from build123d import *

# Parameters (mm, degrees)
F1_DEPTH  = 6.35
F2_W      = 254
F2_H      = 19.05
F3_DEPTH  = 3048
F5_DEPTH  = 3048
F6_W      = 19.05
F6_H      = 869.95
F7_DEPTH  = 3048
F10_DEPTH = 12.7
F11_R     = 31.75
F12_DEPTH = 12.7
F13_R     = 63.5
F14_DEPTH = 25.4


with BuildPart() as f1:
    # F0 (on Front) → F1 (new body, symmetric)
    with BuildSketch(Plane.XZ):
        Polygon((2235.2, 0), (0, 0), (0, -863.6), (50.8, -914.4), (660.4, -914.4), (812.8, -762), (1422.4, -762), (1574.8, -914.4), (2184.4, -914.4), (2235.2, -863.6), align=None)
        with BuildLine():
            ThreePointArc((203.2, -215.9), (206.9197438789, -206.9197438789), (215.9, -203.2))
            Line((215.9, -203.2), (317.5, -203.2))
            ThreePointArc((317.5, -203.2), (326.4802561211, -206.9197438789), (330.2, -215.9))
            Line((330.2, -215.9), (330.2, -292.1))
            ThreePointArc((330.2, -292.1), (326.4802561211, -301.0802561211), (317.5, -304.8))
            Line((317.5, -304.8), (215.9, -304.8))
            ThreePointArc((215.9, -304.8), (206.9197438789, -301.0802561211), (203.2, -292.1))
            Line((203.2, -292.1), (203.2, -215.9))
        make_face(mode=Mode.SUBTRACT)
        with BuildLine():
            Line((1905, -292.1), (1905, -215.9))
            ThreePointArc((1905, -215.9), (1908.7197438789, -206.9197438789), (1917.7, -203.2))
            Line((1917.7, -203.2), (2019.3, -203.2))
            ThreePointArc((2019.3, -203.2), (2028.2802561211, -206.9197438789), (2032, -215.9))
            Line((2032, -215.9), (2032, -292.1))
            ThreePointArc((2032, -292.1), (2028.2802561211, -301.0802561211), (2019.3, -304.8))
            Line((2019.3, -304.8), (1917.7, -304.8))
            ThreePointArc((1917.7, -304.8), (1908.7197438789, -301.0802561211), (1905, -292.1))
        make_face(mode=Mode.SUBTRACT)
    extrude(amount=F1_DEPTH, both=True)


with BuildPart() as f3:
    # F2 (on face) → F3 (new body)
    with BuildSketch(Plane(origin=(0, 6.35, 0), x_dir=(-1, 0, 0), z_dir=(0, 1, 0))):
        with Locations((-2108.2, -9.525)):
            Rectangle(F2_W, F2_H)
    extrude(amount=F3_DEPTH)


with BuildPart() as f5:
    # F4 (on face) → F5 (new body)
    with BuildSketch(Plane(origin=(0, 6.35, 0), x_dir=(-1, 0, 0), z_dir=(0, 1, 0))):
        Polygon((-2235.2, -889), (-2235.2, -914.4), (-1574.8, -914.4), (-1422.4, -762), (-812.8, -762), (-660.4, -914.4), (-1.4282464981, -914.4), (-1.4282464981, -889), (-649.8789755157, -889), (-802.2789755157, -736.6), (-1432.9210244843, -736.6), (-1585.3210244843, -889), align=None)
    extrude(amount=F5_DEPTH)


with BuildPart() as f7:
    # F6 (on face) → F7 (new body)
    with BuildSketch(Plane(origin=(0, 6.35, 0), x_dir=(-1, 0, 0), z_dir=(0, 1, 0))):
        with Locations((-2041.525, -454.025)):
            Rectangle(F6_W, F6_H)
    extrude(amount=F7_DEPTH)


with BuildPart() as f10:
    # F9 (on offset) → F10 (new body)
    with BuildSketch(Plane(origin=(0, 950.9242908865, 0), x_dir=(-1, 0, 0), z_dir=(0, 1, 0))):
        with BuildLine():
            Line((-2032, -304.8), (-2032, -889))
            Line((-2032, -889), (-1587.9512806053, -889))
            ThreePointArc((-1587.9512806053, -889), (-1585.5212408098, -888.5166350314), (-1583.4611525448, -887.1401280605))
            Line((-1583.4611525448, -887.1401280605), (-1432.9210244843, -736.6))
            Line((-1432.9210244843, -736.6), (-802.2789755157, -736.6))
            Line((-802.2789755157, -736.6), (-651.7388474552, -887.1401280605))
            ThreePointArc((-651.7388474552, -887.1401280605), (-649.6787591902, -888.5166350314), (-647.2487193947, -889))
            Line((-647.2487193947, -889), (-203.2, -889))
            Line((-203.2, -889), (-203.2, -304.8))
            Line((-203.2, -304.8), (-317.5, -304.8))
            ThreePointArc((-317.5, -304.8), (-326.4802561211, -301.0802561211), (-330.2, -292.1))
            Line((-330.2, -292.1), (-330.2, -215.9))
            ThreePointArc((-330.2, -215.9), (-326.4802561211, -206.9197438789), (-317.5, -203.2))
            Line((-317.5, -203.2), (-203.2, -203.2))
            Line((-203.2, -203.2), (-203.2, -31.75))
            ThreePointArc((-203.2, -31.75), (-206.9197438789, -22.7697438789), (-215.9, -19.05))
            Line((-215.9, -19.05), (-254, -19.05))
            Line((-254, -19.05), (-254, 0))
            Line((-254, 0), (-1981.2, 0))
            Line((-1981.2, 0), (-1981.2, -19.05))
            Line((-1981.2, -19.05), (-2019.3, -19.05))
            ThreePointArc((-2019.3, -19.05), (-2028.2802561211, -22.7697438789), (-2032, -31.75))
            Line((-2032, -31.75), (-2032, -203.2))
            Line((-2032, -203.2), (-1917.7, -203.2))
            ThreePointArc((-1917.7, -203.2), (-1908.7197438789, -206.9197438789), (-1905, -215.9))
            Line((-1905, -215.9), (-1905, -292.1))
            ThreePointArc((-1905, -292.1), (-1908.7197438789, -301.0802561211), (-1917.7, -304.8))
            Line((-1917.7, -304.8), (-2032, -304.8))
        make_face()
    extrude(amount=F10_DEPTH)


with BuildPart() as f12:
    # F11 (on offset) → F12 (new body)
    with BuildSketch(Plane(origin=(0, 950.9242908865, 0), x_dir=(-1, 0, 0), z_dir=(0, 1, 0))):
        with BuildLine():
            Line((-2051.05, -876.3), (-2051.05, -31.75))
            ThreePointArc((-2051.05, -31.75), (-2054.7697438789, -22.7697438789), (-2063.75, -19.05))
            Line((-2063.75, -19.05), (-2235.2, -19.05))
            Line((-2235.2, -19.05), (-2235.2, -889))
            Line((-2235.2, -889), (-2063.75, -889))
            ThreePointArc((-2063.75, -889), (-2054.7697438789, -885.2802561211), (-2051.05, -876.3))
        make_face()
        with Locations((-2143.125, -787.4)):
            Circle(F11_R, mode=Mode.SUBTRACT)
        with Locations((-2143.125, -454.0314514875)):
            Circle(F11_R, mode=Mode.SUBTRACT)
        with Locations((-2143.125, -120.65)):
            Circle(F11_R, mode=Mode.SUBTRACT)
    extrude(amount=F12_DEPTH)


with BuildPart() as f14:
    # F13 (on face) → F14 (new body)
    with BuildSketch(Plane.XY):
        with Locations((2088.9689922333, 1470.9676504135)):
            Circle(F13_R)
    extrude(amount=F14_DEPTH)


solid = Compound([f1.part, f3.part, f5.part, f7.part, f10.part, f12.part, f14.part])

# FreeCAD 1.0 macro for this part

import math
import FreeCAD as App
import Part
import Sketcher

V = App.Vector
Q = App.Units.Quantity

doc = App.newDocument("Part")
body = doc.addObject("PartDesign::Body", "Body")

sketch1 = body.newObject("Sketcher::SketchObject", "Sketch")
sketch1.AttachmentSupport = (doc.getObject("XZ_Plane"), [""])
sketch1.MapMode = "FlatFace"
sketch1.addGeometry([
    Part.LineSegment(V(2235, 0, 0), V(0, 0, 0)),
    Part.LineSegment(V(0, 0, 0), V(0, -864, 0)),
    Part.LineSegment(V(0, -864, 0), V(51, -914, 0)),
    Part.LineSegment(V(51, -914, 0), V(660, -914, 0)),
    Part.LineSegment(V(660, -914, 0), V(813, -762, 0)),
    Part.LineSegment(V(813, -762, 0), V(1422, -762, 0)),
    Part.LineSegment(V(1422, -762, 0), V(1575, -914, 0)),
    Part.LineSegment(V(1575, -914, 0), V(2184, -914, 0)),
    Part.LineSegment(V(2184, -914, 0), V(2235, -864, 0)),
    Part.LineSegment(V(2235, -864, 0), V(2235, 0, 0)),
    Part.ArcOfCircle(Part.Circle(V(1918, -292, 0), V(0, 0, 1), 13), math.radians(180), math.radians(270)),
    Part.LineSegment(V(1905, -292, 0), V(1905, -216, 0)),
    Part.ArcOfCircle(Part.Circle(V(1918, -216, 0), V(0, 0, 1), 13), math.radians(90), math.radians(180)),
    Part.LineSegment(V(1918, -203, 0), V(2019, -203, 0)),
    Part.ArcOfCircle(Part.Circle(V(2019, -216, 0), V(0, 0, 1), 13), math.radians(0), math.radians(90)),
    Part.LineSegment(V(2032, -216, 0), V(2032, -292, 0)),
    Part.ArcOfCircle(Part.Circle(V(2019, -292, 0), V(0, 0, 1), 13), math.radians(-90), math.radians(0)),
    Part.LineSegment(V(2019, -305, 0), V(1918, -305, 0)),
    Part.LineSegment(V(203, -292, 0), V(203, -216, 0)),
    Part.ArcOfCircle(Part.Circle(V(216, -216, 0), V(0, 0, 1), 13), math.radians(90), math.radians(180)),
    Part.LineSegment(V(216, -203, 0), V(318, -203, 0)),
    Part.ArcOfCircle(Part.Circle(V(318, -216, 0), V(0, 0, 1), 13), math.radians(0), math.radians(90)),
    Part.LineSegment(V(330, -216, 0), V(330, -292, 0)),
    Part.ArcOfCircle(Part.Circle(V(318, -292, 0), V(0, 0, 1), 13), math.radians(-90), math.radians(0)),
    Part.LineSegment(V(318, -305, 0), V(216, -305, 0)),
    Part.ArcOfCircle(Part.Circle(V(216, -292, 0), V(0, 0, 1), 13), math.radians(180), math.radians(270)),
], False)
sketch1.addConstraint([
    Sketcher.Constraint("Coincident", 0, 2, 1, 1),
    Sketcher.Constraint("Coincident", 1, 2, 2, 1),
    Sketcher.Constraint("Coincident", 2, 2, 3, 1),
    Sketcher.Constraint("Coincident", 3, 2, 4, 1),
    Sketcher.Constraint("Coincident", 4, 2, 5, 1),
    Sketcher.Constraint("Coincident", 5, 2, 6, 1),
    Sketcher.Constraint("Coincident", 6, 2, 7, 1),
    Sketcher.Constraint("Coincident", 7, 2, 8, 1),
    Sketcher.Constraint("Coincident", 8, 2, 9, 1),
    Sketcher.Constraint("Coincident", 9, 2, 0, 1),
    Sketcher.Constraint("Tangent", 10, 1, 11, 1),
    Sketcher.Constraint("Tangent", 11, 2, 12, 2),
    Sketcher.Constraint("Tangent", 12, 1, 13, 1),
    Sketcher.Constraint("Tangent", 13, 2, 14, 2),
    Sketcher.Constraint("Tangent", 14, 1, 15, 1),
    Sketcher.Constraint("Tangent", 15, 2, 16, 2),
    Sketcher.Constraint("Tangent", 16, 1, 17, 1),
    Sketcher.Constraint("Tangent", 17, 2, 10, 2),
    Sketcher.Constraint("Tangent", 18, 2, 19, 2),
    Sketcher.Constraint("Tangent", 19, 1, 20, 1),
    Sketcher.Constraint("Tangent", 20, 2, 21, 2),
    Sketcher.Constraint("Tangent", 21, 1, 22, 1),
    Sketcher.Constraint("Tangent", 22, 2, 23, 2),
    Sketcher.Constraint("Tangent", 23, 1, 24, 1),
    Sketcher.Constraint("Tangent", 24, 2, 25, 2),
    Sketcher.Constraint("Tangent", 25, 1, 18, 1),
    Sketcher.Constraint("Horizontal", 0),
    Sketcher.Constraint("Vertical", 1),
    Sketcher.Constraint("Horizontal", 3),
    Sketcher.Constraint("Horizontal", 5),
    Sketcher.Constraint("Horizontal", 7),
    Sketcher.Constraint("Vertical", 9),
    Sketcher.Constraint("Vertical", 11),
    Sketcher.Constraint("Horizontal", 13),
    Sketcher.Constraint("Vertical", 15),
    Sketcher.Constraint("Horizontal", 17),
    Sketcher.Constraint("Vertical", 18),
    Sketcher.Constraint("Horizontal", 20),
    Sketcher.Constraint("Vertical", 22),
    Sketcher.Constraint("Horizontal", 24),
    Sketcher.Constraint("Coincident", 0, 2, -1, 1),
    Sketcher.Constraint("Equal", 10, 12),
    Sketcher.Constraint("Equal", 12, 14),
    Sketcher.Constraint("Equal", 14, 16),
    Sketcher.Constraint("Equal", 16, 19),
    Sketcher.Constraint("Equal", 19, 21),
    Sketcher.Constraint("Equal", 21, 23),
    Sketcher.Constraint("Equal", 23, 25),
    Sketcher.Constraint("Perpendicular", 2, 4),
    Sketcher.Constraint("Perpendicular", 4, 6),
    Sketcher.Constraint("Perpendicular", 6, 8),
    Sketcher.Constraint("Horizontal", 14, 3, 19, 3),
    Sketcher.Constraint("Horizontal", 16, 3, 23, 3),
    Sketcher.Constraint("Horizontal", 3, 2, 6, 2),
    Sketcher.Constraint("Horizontal", 1, 2, 8, 2),
    Sketcher.Constraint("Equal", 3, 5),
    Sketcher.Constraint("Equal", 5, 7),
    Sketcher.Constraint("Equal", 17, 20),
    Sketcher.Constraint("Equal", 4, 6),
    Sketcher.Constraint("Radius", 10, Q("0.5 in")),
    Sketcher.Constraint("DistanceX", 0, 2, 0, 1, Q("88 in")),
    Sketcher.Constraint("DistanceX", 3, 1, 3, 2, Q("24 in")),
    Sketcher.Constraint("DistanceX", 13, 1, 13, 2, Q("4 in")),
    Sketcher.Constraint("DistanceY", 1, 2, 1, 1, Q("34 in")),
    Sketcher.Constraint("DistanceY", 11, 1, 11, 2, Q("3 in")),
    Sketcher.Constraint("DistanceX", -1, 1, 2, 2, Q("2 in")),
    Sketcher.Constraint("DistanceX", -1, 1, 10, 1, Q("75 in")),
    Sketcher.Constraint("DistanceY", 12, 1, -1, 1, Q("8 in")),
    Sketcher.Constraint("DistanceX", -1, 1, 18, 2, Q("8 in")),
])
pad1 = body.newObject("PartDesign::Pad", "Pad")
pad1.Profile = sketch1
pad1.Length = Q("0.5 in")
pad1.Midplane = True
body2 = doc.addObject("PartDesign::Body", "Body001")

sketch2 = body2.newObject("Sketcher::SketchObject", "Sketch001")
sketch2.AttachmentSupport = (doc.getObject("XZ_Plane001"), [""])
sketch2.MapMode = "FlatFace"
sketch2.AttachmentOffset = App.Placement(V(0, 0, -0.25 * 25.4), App.Rotation())
sketch2.addGeometry([
    Part.LineSegment(V(2235, 0, 0), V(2235, -19, 0)),
    Part.LineSegment(V(2235, -19, 0), V(1981, -19, 0)),
    Part.LineSegment(V(1981, -19, 0), V(1981, 0, 0)),
    Part.LineSegment(V(1981, 0, 0), V(2235, 0, 0)),
], False)
sketch2.addConstraint([
    Sketcher.Constraint("Coincident", 0, 2, 1, 1),
    Sketcher.Constraint("Coincident", 1, 2, 2, 1),
    Sketcher.Constraint("Coincident", 2, 2, 3, 1),
    Sketcher.Constraint("Coincident", 3, 2, 0, 1),
    Sketcher.Constraint("Vertical", 0),
    Sketcher.Constraint("Horizontal", 1),
    Sketcher.Constraint("Vertical", 2),
    Sketcher.Constraint("Horizontal", 3),
    Sketcher.Constraint("PointOnObject", 2, 2, -1),
    Sketcher.Constraint("DistanceX", 1, 2, 1, 1, Q("10 in")),
    Sketcher.Constraint("DistanceX", -1, 1, 0, 2, Q("88 in")),
    Sketcher.Constraint("DistanceY", 0, 2, 0, 1, Q("0.75 in")),
])
pad2 = body2.newObject("PartDesign::Pad", "Pad001")
pad2.Profile = sketch2
pad2.Length = Q("120 in")
pad2.Reversed = True
body3 = doc.addObject("PartDesign::Body", "Body002")

sketch3 = body3.newObject("Sketcher::SketchObject", "Sketch002")
sketch3.AttachmentSupport = (doc.getObject("XZ_Plane002"), [""])
sketch3.MapMode = "FlatFace"
sketch3.AttachmentOffset = App.Placement(V(0, 0, -0.25 * 25.4), App.Rotation())
sketch3.addGeometry([
    Part.LineSegment(V(2235, -889, 0), V(2235, -914, 0)),
    Part.LineSegment(V(2235, -914, 0), V(1575, -914, 0)),
    Part.LineSegment(V(1575, -914, 0), V(1422, -762, 0)),
    Part.LineSegment(V(1422, -762, 0), V(813, -762, 0)),
    Part.LineSegment(V(813, -762, 0), V(660, -914, 0)),
    Part.LineSegment(V(660, -914, 0), V(1, -914, 0)),
    Part.LineSegment(V(1, -914, 0), V(1, -889, 0)),
    Part.LineSegment(V(1, -889, 0), V(650, -889, 0)),
    Part.LineSegment(V(650, -889, 0), V(802, -737, 0)),
    Part.LineSegment(V(802, -737, 0), V(1433, -737, 0)),
    Part.LineSegment(V(1433, -737, 0), V(1585, -889, 0)),
    Part.LineSegment(V(1585, -889, 0), V(2235, -889, 0)),
], False)
sketch3.addConstraint([
    Sketcher.Constraint("Coincident", 0, 2, 1, 1),
    Sketcher.Constraint("Coincident", 1, 2, 2, 1),
    Sketcher.Constraint("Coincident", 2, 2, 3, 1),
    Sketcher.Constraint("Coincident", 3, 2, 4, 1),
    Sketcher.Constraint("Coincident", 4, 2, 5, 1),
    Sketcher.Constraint("Coincident", 5, 2, 6, 1),
    Sketcher.Constraint("Coincident", 6, 2, 7, 1),
    Sketcher.Constraint("Coincident", 7, 2, 8, 1),
    Sketcher.Constraint("Coincident", 8, 2, 9, 1),
    Sketcher.Constraint("Coincident", 9, 2, 10, 1),
    Sketcher.Constraint("Coincident", 10, 2, 11, 1),
    Sketcher.Constraint("Coincident", 11, 2, 0, 1),
    Sketcher.Constraint("Vertical", 0),
    Sketcher.Constraint("Horizontal", 1),
    Sketcher.Constraint("Horizontal", 3),
    Sketcher.Constraint("Horizontal", 5),
    Sketcher.Constraint("Vertical", 6),
    Sketcher.Constraint("Horizontal", 7),
    Sketcher.Constraint("Horizontal", 9),
    Sketcher.Constraint("Horizontal", 11),
    Sketcher.Constraint("Perpendicular", 2, 4),
    Sketcher.Constraint("Parallel", 4, 8),
    Sketcher.Constraint("Perpendicular", 8, 10),
    Sketcher.Constraint("Horizontal", 1, 2, 4, 2),
    Sketcher.Constraint("Horizontal", 7, 2, 10, 2),
    Sketcher.Constraint("Equal", 2, 4),
    Sketcher.Constraint("Equal", 4, 8),
    Sketcher.Constraint("DistanceX", 1, 2, 1, 1, Q("26 in")),
    Sketcher.Constraint("DistanceX", 3, 2, 3, 1, Q("24 in")),
    Sketcher.Constraint("DistanceY", 0, 2, 0, 1, Q("1 in")),
    Sketcher.Constraint("DistanceX", -1, 1, 0, 2, Q("88 in")),
    Sketcher.Constraint("DistanceY", 0, 2, -1, 1, Q("36 in")),
    Sketcher.Constraint("DistanceX", -1, 1, 2, 2, Q("56 in")),
    Sketcher.Constraint("DistanceX", 7, 1, 7, 2, 648.450729),
    Sketcher.Constraint("DistanceX", 9, 1, 9, 2, 630.642049),
    Sketcher.Constraint("DistanceX", 5, 2, 5, 1, 658.971754),
])
pad3 = body3.newObject("PartDesign::Pad", "Pad002")
pad3.Profile = sketch3
pad3.Length = Q("120 in")
pad3.Reversed = True
body4 = doc.addObject("PartDesign::Body", "Body003")

sketch4 = body4.newObject("Sketcher::SketchObject", "Sketch003")
sketch4.AttachmentSupport = (doc.getObject("XZ_Plane003"), [""])
sketch4.MapMode = "FlatFace"
sketch4.AttachmentOffset = App.Placement(V(0, 0, -0.25 * 25.4), App.Rotation())
sketch4.addGeometry([
    Part.LineSegment(V(2051, -19, 0), V(2051, -889, 0)),
    Part.LineSegment(V(2051, -889, 0), V(2032, -889, 0)),
    Part.LineSegment(V(2032, -889, 0), V(2032, -19, 0)),
    Part.LineSegment(V(2032, -19, 0), V(2051, -19, 0)),
], False)
sketch4.addConstraint([
    Sketcher.Constraint("Coincident", 0, 2, 1, 1),
    Sketcher.Constraint("Coincident", 1, 2, 2, 1),
    Sketcher.Constraint("Coincident", 2, 2, 3, 1),
    Sketcher.Constraint("Coincident", 3, 2, 0, 1),
    Sketcher.Constraint("Vertical", 0),
    Sketcher.Constraint("Horizontal", 1),
    Sketcher.Constraint("Vertical", 2),
    Sketcher.Constraint("Horizontal", 3),
    Sketcher.Constraint("DistanceY", 0, 2, -1, 1, Q("35 in")),
    Sketcher.Constraint("DistanceX", -1, 1, 1, 2, Q("80 in")),
    Sketcher.Constraint("DistanceX", 1, 2, 1, 1, Q("0.75 in")),
    Sketcher.Constraint("DistanceY", 0, 2, 0, 1, Q("34.25 in")),
])
pad4 = body4.newObject("PartDesign::Pad", "Pad003")
pad4.Profile = sketch4
pad4.Length = Q("120 in")
pad4.Reversed = True
body5 = doc.addObject("PartDesign::Body", "Body004")

sketch5 = body5.newObject("Sketcher::SketchObject", "Sketch004")
sketch5.AttachmentSupport = (doc.getObject("XZ_Plane004"), [""])
sketch5.MapMode = "FlatFace"
sketch5.AttachmentOffset = App.Placement(V(0, 0, -950.924291), App.Rotation())
sketch5.addGeometry([
    Part.LineSegment(V(2032, -304.8, 0), V(2032, -889, 0)),
    Part.LineSegment(V(2032, -889, 0), V(1588, -889, 0)),
    Part.ArcOfCircle(Part.Circle(V(1588, -882.6, 0), V(0, 0, 1), 6.3), math.radians(-135), math.radians(-90)),
    Part.LineSegment(V(1583.5, -887.1, 0), V(1432.9, -736.6, 0)),
    Part.LineSegment(V(1432.9, -736.6, 0), V(802.3, -736.6, 0)),
    Part.LineSegment(V(802.3, -736.6, 0), V(651.7, -887.1, 0)),
    Part.ArcOfCircle(Part.Circle(V(647.2, -882.6, 0), V(0, 0, 1), 6.3), math.radians(-90), math.radians(-45)),
    Part.LineSegment(V(647.2, -889, 0), V(203.2, -889, 0)),
    Part.LineSegment(V(203.2, -889, 0), V(203.2, -304.8, 0)),
    Part.LineSegment(V(203.2, -304.8, 0), V(317.5, -304.8, 0)),
    Part.ArcOfCircle(Part.Circle(V(317.5, -292.1, 0), V(0, 0, 1), 12.7), math.radians(-90), math.radians(0)),
    Part.LineSegment(V(330.2, -292.1, 0), V(330.2, -215.9, 0)),
    Part.ArcOfCircle(Part.Circle(V(317.5, -215.9, 0), V(0, 0, 1), 12.7), math.radians(0), math.radians(90)),
    Part.LineSegment(V(317.5, -203.2, 0), V(203.2, -203.2, 0)),
    Part.LineSegment(V(203.2, -203.2, 0), V(203.2, -31.8, 0)),
    Part.ArcOfCircle(Part.Circle(V(215.9, -31.8, 0), V(0, 0, 1), 12.7), math.radians(90), math.radians(180)),
    Part.LineSegment(V(215.9, -19.1, 0), V(254, -19.1, 0)),
    Part.LineSegment(V(254, -19.1, 0), V(254, 0, 0)),
    Part.LineSegment(V(254, 0, 0), V(1981.2, 0, 0)),
    Part.LineSegment(V(1981.2, 0, 0), V(1981.2, -19.1, 0)),
    Part.LineSegment(V(1981.2, -19.1, 0), V(2019.3, -19.1, 0)),
    Part.ArcOfCircle(Part.Circle(V(2019.3, -31.8, 0), V(0, 0, 1), 12.7), math.radians(0), math.radians(90)),
    Part.LineSegment(V(2032, -31.8, 0), V(2032, -203.2, 0)),
    Part.LineSegment(V(2032, -203.2, 0), V(1917.7, -203.2, 0)),
    Part.ArcOfCircle(Part.Circle(V(1917.7, -215.9, 0), V(0, 0, 1), 12.7), math.radians(90), math.radians(180)),
    Part.LineSegment(V(1905, -215.9, 0), V(1905, -292.1, 0)),
    Part.ArcOfCircle(Part.Circle(V(1917.7, -292.1, 0), V(0, 0, 1), 12.7), math.radians(180), math.radians(270)),
    Part.LineSegment(V(1917.7, -304.8, 0), V(2032, -304.8, 0)),
], False)
sketch5.addConstraint([
    Sketcher.Constraint("Coincident", 0, 2, 1, 1),
    Sketcher.Constraint("Tangent", 1, 2, 2, 2),
    Sketcher.Constraint("Tangent", 2, 1, 3, 1),
    Sketcher.Constraint("Coincident", 3, 2, 4, 1),
    Sketcher.Constraint("Coincident", 4, 2, 5, 1),
    Sketcher.Constraint("Tangent", 5, 2, 6, 2),
    Sketcher.Constraint("Tangent", 6, 1, 7, 1),
    Sketcher.Constraint("Coincident", 7, 2, 8, 1),
    Sketcher.Constraint("Coincident", 8, 2, 9, 1),
    Sketcher.Constraint("Tangent", 9, 2, 10, 1),
    Sketcher.Constraint("Tangent", 10, 2, 11, 1),
    Sketcher.Constraint("Tangent", 11, 2, 12, 1),
    Sketcher.Constraint("Tangent", 12, 2, 13, 1),
    Sketcher.Constraint("Coincident", 13, 2, 14, 1),
    Sketcher.Constraint("Tangent", 14, 2, 15, 2),
    Sketcher.Constraint("Tangent", 15, 1, 16, 1),
    Sketcher.Constraint("Coincident", 16, 2, 17, 1),
    Sketcher.Constraint("Coincident", 17, 2, 18, 1),
    Sketcher.Constraint("Coincident", 18, 2, 19, 1),
    Sketcher.Constraint("Coincident", 19, 2, 20, 1),
    Sketcher.Constraint("Tangent", 20, 2, 21, 2),
    Sketcher.Constraint("Tangent", 21, 1, 22, 1),
    Sketcher.Constraint("Coincident", 22, 2, 23, 1),
    Sketcher.Constraint("Tangent", 23, 2, 24, 1),
    Sketcher.Constraint("Tangent", 24, 2, 25, 1),
    Sketcher.Constraint("Tangent", 25, 2, 26, 1),
    Sketcher.Constraint("Tangent", 26, 2, 27, 1),
    Sketcher.Constraint("Coincident", 27, 2, 0, 1),
    Sketcher.Constraint("Vertical", 0),
    Sketcher.Constraint("Horizontal", 1),
    Sketcher.Constraint("Horizontal", 4),
    Sketcher.Constraint("Horizontal", 7),
    Sketcher.Constraint("Vertical", 8),
    Sketcher.Constraint("Horizontal", 9),
    Sketcher.Constraint("Vertical", 11),
    Sketcher.Constraint("Horizontal", 13),
    Sketcher.Constraint("Vertical", 14),
    Sketcher.Constraint("Horizontal", 16),
    Sketcher.Constraint("Vertical", 17),
    Sketcher.Constraint("Horizontal", 18),
    Sketcher.Constraint("Vertical", 19),
    Sketcher.Constraint("Horizontal", 20),
    Sketcher.Constraint("Vertical", 22),
    Sketcher.Constraint("Horizontal", 23),
    Sketcher.Constraint("Vertical", 25),
    Sketcher.Constraint("Horizontal", 27),
    Sketcher.Constraint("Equal", 2, 6),
    Sketcher.Constraint("Equal", 10, 12),
    Sketcher.Constraint("Equal", 12, 15),
    Sketcher.Constraint("Equal", 15, 21),
    Sketcher.Constraint("Equal", 21, 24),
    Sketcher.Constraint("Equal", 24, 26),
    Sketcher.Constraint("PointOnObject", 17, 2, -1),
    Sketcher.Constraint("Perpendicular", 3, 5),
    Sketcher.Constraint("Horizontal", 2, 3, 6, 3),
    Sketcher.Constraint("Horizontal", 15, 3, 21, 3),
    Sketcher.Constraint("Horizontal", 12, 3, 24, 3),
    Sketcher.Constraint("Horizontal", 10, 3, 26, 3),
    Sketcher.Constraint("Horizontal", 2, 1, 5, 2),
    Sketcher.Constraint("Vertical", 8, 2, 13, 2),
    Sketcher.Constraint("Vertical", 0, 2, 21, 1),
    Sketcher.Constraint("Equal", 1, 7),
    Sketcher.Constraint("Equal", 16, 20),
    Sketcher.Constraint("Equal", 13, 23),
    Sketcher.Constraint("Radius", 10, Q("0.5 in")),
    Sketcher.Constraint("DistanceX", 18, 1, 18, 2, Q("68 in")),
    Sketcher.Constraint("DistanceY", 0, 2, 0, 1, Q("23 in")),
    Sketcher.Constraint("DistanceY", 11, 1, 11, 2, Q("3 in")),
    Sketcher.Constraint("Radius", 2, Q("0.25 in")),
    Sketcher.Constraint("DistanceX", 9, 1, 9, 2, Q("4.5 in")),
    Sketcher.Constraint("DistanceX", 16, 1, 16, 2, Q("1.5 in")),
    Sketcher.Constraint("DistanceX", -1, 1, 0, 2, Q("80 in")),
    Sketcher.Constraint("DistanceY", 0, 2, -1, 1, Q("35 in")),
    Sketcher.Constraint("DistanceY", 3, 2, -1, 1, Q("29 in")),
    Sketcher.Constraint("DistanceY", 14, 1, 14, 2, Q("6.75 in")),
    Sketcher.Constraint("DistanceX", 1, 2, 1, 1, 444.048719),
])
pad5 = body5.newObject("PartDesign::Pad", "Pad004")
pad5.Profile = sketch5
pad5.Length = Q("0.5 in")
pad5.Reversed = True
body6 = doc.addObject("PartDesign::Body", "Body005")

sketch6 = body6.newObject("Sketcher::SketchObject", "Sketch005")
sketch6.AttachmentSupport = (doc.getObject("XZ_Plane005"), [""])
sketch6.MapMode = "FlatFace"
sketch6.AttachmentOffset = App.Placement(V(0, 0, -950.924291), App.Rotation())
sketch6.addGeometry([
    Part.LineSegment(V(2051, -876, 0), V(2051, -32, 0)),
    Part.ArcOfCircle(Part.Circle(V(2064, -32, 0), V(0, 0, 1), 13), math.radians(90), math.radians(180)),
    Part.LineSegment(V(2064, -19, 0), V(2235, -19, 0)),
    Part.LineSegment(V(2235, -19, 0), V(2235, -889, 0)),
    Part.LineSegment(V(2235, -889, 0), V(2064, -889, 0)),
    Part.ArcOfCircle(Part.Circle(V(2064, -876, 0), V(0, 0, 1), 13), math.radians(180), math.radians(270)),
    Part.Circle(V(2143, -787, 0), V(0, 0, 1), 32),
    Part.Circle(V(2143, -454, 0), V(0, 0, 1), 32),
    Part.Circle(V(2143, -121, 0), V(0, 0, 1), 32),
], False)
sketch6.addConstraint([
    Sketcher.Constraint("Tangent", 0, 2, 1, 2),
    Sketcher.Constraint("Tangent", 1, 1, 2, 1),
    Sketcher.Constraint("Coincident", 2, 2, 3, 1),
    Sketcher.Constraint("Coincident", 3, 2, 4, 1),
    Sketcher.Constraint("Tangent", 4, 2, 5, 2),
    Sketcher.Constraint("Tangent", 5, 1, 0, 1),
    Sketcher.Constraint("Vertical", 0),
    Sketcher.Constraint("Horizontal", 2),
    Sketcher.Constraint("Vertical", 3),
    Sketcher.Constraint("Horizontal", 4),
    Sketcher.Constraint("Equal", 1, 5),
    Sketcher.Constraint("Equal", 6, 7),
    Sketcher.Constraint("Equal", 7, 8),
    Sketcher.Constraint("Vertical", 6, 3, 7, 3),
    Sketcher.Constraint("Vertical", 7, 3, 8, 3),
    Sketcher.Constraint("Diameter", 6, Q("2.5 in")),
    Sketcher.Constraint("Radius", 1, Q("0.5 in")),
    Sketcher.Constraint("DistanceY", 6, 3, -1, 1, Q("31 in")),
    Sketcher.Constraint("DistanceX", -1, 1, 2, 2, Q("88 in")),
    Sketcher.Constraint("DistanceY", 3, 2, -1, 1, Q("35 in")),
    Sketcher.Constraint("DistanceY", 8, 3, 1, 1, Q("4 in")),
    Sketcher.Constraint("DistanceX", 2, 1, 2, 2, Q("6.75 in")),
    Sketcher.Constraint("DistanceY", 0, 1, 0, 2, Q("33.25 in")),
    Sketcher.Constraint("DistanceX", -1, 1, 6, 3, Q("84.375 in")),
    Sketcher.Constraint("DistanceY", 7, 3, -1, 1, 454.031451),
])
pad6 = body6.newObject("PartDesign::Pad", "Pad005")
pad6.Profile = sketch6
pad6.Length = Q("0.5 in")
pad6.Reversed = True
body7 = doc.addObject("PartDesign::Body", "Body006")

sketch7 = body7.newObject("Sketcher::SketchObject", "Sketch006")
sketch7.AttachmentSupport = (doc.getObject("XY_Plane006"), [""])
sketch7.MapMode = "FlatFace"
sketch7.addGeometry(Part.Circle(V(2089, 1471, 0), V(0, 0, 1), 64), False)
sketch7.addConstraint([
    Sketcher.Constraint("Diameter", 0, Q("5 in")),
    Sketcher.Constraint("DistanceY", -1, 1, 0, 3, 1470.96765),
    Sketcher.Constraint("DistanceX", -1, 1, 0, 3, 2088.968992),
])
pad7 = body7.newObject("PartDesign::Pad", "Pad006")
pad7.Profile = sketch7
pad7.Length = Q("1 in")

doc.recompute()
